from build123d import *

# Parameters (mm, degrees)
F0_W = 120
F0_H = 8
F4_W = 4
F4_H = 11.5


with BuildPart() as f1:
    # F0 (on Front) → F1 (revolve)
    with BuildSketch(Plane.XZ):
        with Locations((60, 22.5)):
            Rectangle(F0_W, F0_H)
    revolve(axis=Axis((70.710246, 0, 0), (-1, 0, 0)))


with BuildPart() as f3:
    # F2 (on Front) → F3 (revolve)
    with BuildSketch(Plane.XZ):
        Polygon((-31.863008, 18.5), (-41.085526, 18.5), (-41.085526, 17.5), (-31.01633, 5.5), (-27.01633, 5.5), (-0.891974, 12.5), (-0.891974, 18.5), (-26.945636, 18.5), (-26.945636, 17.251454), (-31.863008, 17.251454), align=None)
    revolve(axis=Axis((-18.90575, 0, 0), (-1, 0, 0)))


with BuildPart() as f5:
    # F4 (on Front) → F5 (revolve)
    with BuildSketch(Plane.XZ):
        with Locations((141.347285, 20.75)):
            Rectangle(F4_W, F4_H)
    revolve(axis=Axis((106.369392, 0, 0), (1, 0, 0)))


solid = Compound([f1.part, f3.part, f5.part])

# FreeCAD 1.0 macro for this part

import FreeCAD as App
import Part
import Sketcher
Q = App.Units.Quantity


def add_polygon(sketch, points):
    """Adds a closed chain of lines whose ends are joined by coincident constraints."""
    first, n = sketch.GeometryCount, len(points)
    for a, b in zip(points, points[1:] + points[:1]):
        sketch.addGeometry(Part.LineSegment(App.Vector(*a, 0), App.Vector(*b, 0)), False)
    for i in range(n):
        sketch.addConstraint(Sketcher.Constraint("Coincident", first + i, 2, first + (i + 1) % n, 1))

doc = App.newDocument("Part")
body = doc.addObject("PartDesign::Body", "Body")

sketch1 = doc.addObject("Sketcher::SketchObject", "Sketch")
body.addObject(sketch1)
sketch1.AttachmentSupport = (doc.XZ_Plane, [""])
sketch1.MapMode = "FlatFace"
add_polygon(sketch1, [(0, 26.5), (0, 18.5), (120, 18.5), (120, 26.5)])
sketch1.addConstraint(Sketcher.Constraint("Vertical", 0))
sketch1.addConstraint(Sketcher.Constraint("Horizontal", 1))
sketch1.addConstraint(Sketcher.Constraint("Vertical", 2))
sketch1.addConstraint(Sketcher.Constraint("Horizontal", 3))
sketch1.addConstraint(Sketcher.Constraint("PointOnObject", 0, 2, -2))
sketch1.addConstraint(Sketcher.Constraint("DistanceX", 1, 1, 1, 2, Q("120 mm")))
sketch1.addConstraint(Sketcher.Constraint("DistanceY", 0, 2, 0, 1, Q("8 mm")))
sketch1.addConstraint(Sketcher.Constraint("DistanceY", -1, 1, 0, 2, Q("18.5 mm")))
revolution = doc.addObject("PartDesign::Revolution", "Revolution")
body.addObject(revolution)
revolution.Profile = sketch1
revolution.ReferenceAxis = (sketch1, ["H_Axis"])
revolution.Angle = 360
body2 = doc.addObject("PartDesign::Body", "Body001")

sketch2 = doc.addObject("Sketcher::SketchObject", "Sketch001")
body2.addObject(sketch2)
sketch2.AttachmentSupport = (doc.getObject("XZ_Plane001"), [""])
sketch2.MapMode = "FlatFace"
add_polygon(sketch2, [(-31.863008, 18.5), (-41.085526, 18.5), (-41.085526, 17.5), (-31.01633, 5.5), (-27.01633, 5.5), (-0.891974, 12.5), (-0.891974, 18.5), (-26.945636, 18.5), (-26.945636, 17.251454), (-31.863008, 17.251454)])
sketch2.addConstraint(Sketcher.Constraint("Horizontal", 0))
sketch2.addConstraint(Sketcher.Constraint("Vertical", 1))
sketch2.addConstraint(Sketcher.Constraint("Horizontal", 3))
sketch2.addConstraint(Sketcher.Constraint("Vertical", 5))
sketch2.addConstraint(Sketcher.Constraint("Horizontal", 6))
sketch2.addConstraint(Sketcher.Constraint("Vertical", 7))
sketch2.addConstraint(Sketcher.Constraint("Horizontal", 8))
sketch2.addConstraint(Sketcher.Constraint("Vertical", 9))
sketch2.addConstraint(Sketcher.Constraint("Horizontal", 0, 2, 5, 2))
sketch2.addConstraint(Sketcher.Constraint("DistanceX", 3, 1, 3, 2, Q("4 mm")))
sketch2.addConstraint(Sketcher.Constraint("DistanceY", 1, 2, 1, 1, Q("1 mm")))
sketch2.addConstraint(Sketcher.Constraint("DistanceY", 5, 1, 5, 2, Q("6 mm")))
sketch2.addConstraint(Sketcher.Constraint("Angle", 2, Q("-49.999999 deg")))
sketch2.addConstraint(Sketcher.Constraint("Angle", 4, Q("15 deg")))
sketch2.addConstraint(Sketcher.Constraint("DistanceY", 2, 2, 1, 2, Q("12 mm")))
sketch2.addConstraint(Sketcher.Constraint("DistanceY", -1, 1, 0, 2, Q("18.5 mm")))
sketch2.addConstraint(Sketcher.Constraint("DistanceX", 0, 2, 0, 1, Q("9.222518 mm")))
sketch2.addConstraint(Sketcher.Constraint("DistanceX", 6, 2, 6, 1, Q("26.053662 mm")))
sketch2.addConstraint(Sketcher.Constraint("DistanceY", 7, 2, 7, 1, Q("1.248546 mm")))
sketch2.addConstraint(Sketcher.Constraint("DistanceX", 2, 2, -1, 1, Q("31.01633 mm")))
revolution2 = doc.addObject("PartDesign::Revolution", "Revolution001")
body2.addObject(revolution2)
revolution2.Profile = sketch2
revolution2.ReferenceAxis = (sketch2, ["H_Axis"])
revolution2.Angle = 360
body3 = doc.addObject("PartDesign::Body", "Body002")

sketch3 = doc.addObject("Sketcher::SketchObject", "Sketch002")
body3.addObject(sketch3)
sketch3.AttachmentSupport = (doc.getObject("XZ_Plane002"), [""])
sketch3.MapMode = "FlatFace"
add_polygon(sketch3, [(139.347285, 26.5), (139.347285, 15), (143.347285, 15), (143.347285, 26.5)])
sketch3.addConstraint(Sketcher.Constraint("Vertical", 0))
sketch3.addConstraint(Sketcher.Constraint("Horizontal", 1))
sketch3.addConstraint(Sketcher.Constraint("Vertical", 2))
sketch3.addConstraint(Sketcher.Constraint("Horizontal", 3))
sketch3.addConstraint(Sketcher.Constraint("DistanceX", 1, 1, 1, 2, Q("4 mm")))
sketch3.addConstraint(Sketcher.Constraint("DistanceY", 0, 2, 0, 1, Q("11.5 mm")))
sketch3.addConstraint(Sketcher.Constraint("DistanceY", -1, 1, 0, 2, Q("15 mm")))
sketch3.addConstraint(Sketcher.Constraint("DistanceX", -1, 1, 0, 2, Q("139.347285 mm")))
revolution3 = doc.addObject("PartDesign::Revolution", "Revolution002")
body3.addObject(revolution3)
revolution3.Profile = sketch3
revolution3.ReferenceAxis = (sketch3, ["H_Axis"])
revolution3.Angle = 360

doc.recompute()
